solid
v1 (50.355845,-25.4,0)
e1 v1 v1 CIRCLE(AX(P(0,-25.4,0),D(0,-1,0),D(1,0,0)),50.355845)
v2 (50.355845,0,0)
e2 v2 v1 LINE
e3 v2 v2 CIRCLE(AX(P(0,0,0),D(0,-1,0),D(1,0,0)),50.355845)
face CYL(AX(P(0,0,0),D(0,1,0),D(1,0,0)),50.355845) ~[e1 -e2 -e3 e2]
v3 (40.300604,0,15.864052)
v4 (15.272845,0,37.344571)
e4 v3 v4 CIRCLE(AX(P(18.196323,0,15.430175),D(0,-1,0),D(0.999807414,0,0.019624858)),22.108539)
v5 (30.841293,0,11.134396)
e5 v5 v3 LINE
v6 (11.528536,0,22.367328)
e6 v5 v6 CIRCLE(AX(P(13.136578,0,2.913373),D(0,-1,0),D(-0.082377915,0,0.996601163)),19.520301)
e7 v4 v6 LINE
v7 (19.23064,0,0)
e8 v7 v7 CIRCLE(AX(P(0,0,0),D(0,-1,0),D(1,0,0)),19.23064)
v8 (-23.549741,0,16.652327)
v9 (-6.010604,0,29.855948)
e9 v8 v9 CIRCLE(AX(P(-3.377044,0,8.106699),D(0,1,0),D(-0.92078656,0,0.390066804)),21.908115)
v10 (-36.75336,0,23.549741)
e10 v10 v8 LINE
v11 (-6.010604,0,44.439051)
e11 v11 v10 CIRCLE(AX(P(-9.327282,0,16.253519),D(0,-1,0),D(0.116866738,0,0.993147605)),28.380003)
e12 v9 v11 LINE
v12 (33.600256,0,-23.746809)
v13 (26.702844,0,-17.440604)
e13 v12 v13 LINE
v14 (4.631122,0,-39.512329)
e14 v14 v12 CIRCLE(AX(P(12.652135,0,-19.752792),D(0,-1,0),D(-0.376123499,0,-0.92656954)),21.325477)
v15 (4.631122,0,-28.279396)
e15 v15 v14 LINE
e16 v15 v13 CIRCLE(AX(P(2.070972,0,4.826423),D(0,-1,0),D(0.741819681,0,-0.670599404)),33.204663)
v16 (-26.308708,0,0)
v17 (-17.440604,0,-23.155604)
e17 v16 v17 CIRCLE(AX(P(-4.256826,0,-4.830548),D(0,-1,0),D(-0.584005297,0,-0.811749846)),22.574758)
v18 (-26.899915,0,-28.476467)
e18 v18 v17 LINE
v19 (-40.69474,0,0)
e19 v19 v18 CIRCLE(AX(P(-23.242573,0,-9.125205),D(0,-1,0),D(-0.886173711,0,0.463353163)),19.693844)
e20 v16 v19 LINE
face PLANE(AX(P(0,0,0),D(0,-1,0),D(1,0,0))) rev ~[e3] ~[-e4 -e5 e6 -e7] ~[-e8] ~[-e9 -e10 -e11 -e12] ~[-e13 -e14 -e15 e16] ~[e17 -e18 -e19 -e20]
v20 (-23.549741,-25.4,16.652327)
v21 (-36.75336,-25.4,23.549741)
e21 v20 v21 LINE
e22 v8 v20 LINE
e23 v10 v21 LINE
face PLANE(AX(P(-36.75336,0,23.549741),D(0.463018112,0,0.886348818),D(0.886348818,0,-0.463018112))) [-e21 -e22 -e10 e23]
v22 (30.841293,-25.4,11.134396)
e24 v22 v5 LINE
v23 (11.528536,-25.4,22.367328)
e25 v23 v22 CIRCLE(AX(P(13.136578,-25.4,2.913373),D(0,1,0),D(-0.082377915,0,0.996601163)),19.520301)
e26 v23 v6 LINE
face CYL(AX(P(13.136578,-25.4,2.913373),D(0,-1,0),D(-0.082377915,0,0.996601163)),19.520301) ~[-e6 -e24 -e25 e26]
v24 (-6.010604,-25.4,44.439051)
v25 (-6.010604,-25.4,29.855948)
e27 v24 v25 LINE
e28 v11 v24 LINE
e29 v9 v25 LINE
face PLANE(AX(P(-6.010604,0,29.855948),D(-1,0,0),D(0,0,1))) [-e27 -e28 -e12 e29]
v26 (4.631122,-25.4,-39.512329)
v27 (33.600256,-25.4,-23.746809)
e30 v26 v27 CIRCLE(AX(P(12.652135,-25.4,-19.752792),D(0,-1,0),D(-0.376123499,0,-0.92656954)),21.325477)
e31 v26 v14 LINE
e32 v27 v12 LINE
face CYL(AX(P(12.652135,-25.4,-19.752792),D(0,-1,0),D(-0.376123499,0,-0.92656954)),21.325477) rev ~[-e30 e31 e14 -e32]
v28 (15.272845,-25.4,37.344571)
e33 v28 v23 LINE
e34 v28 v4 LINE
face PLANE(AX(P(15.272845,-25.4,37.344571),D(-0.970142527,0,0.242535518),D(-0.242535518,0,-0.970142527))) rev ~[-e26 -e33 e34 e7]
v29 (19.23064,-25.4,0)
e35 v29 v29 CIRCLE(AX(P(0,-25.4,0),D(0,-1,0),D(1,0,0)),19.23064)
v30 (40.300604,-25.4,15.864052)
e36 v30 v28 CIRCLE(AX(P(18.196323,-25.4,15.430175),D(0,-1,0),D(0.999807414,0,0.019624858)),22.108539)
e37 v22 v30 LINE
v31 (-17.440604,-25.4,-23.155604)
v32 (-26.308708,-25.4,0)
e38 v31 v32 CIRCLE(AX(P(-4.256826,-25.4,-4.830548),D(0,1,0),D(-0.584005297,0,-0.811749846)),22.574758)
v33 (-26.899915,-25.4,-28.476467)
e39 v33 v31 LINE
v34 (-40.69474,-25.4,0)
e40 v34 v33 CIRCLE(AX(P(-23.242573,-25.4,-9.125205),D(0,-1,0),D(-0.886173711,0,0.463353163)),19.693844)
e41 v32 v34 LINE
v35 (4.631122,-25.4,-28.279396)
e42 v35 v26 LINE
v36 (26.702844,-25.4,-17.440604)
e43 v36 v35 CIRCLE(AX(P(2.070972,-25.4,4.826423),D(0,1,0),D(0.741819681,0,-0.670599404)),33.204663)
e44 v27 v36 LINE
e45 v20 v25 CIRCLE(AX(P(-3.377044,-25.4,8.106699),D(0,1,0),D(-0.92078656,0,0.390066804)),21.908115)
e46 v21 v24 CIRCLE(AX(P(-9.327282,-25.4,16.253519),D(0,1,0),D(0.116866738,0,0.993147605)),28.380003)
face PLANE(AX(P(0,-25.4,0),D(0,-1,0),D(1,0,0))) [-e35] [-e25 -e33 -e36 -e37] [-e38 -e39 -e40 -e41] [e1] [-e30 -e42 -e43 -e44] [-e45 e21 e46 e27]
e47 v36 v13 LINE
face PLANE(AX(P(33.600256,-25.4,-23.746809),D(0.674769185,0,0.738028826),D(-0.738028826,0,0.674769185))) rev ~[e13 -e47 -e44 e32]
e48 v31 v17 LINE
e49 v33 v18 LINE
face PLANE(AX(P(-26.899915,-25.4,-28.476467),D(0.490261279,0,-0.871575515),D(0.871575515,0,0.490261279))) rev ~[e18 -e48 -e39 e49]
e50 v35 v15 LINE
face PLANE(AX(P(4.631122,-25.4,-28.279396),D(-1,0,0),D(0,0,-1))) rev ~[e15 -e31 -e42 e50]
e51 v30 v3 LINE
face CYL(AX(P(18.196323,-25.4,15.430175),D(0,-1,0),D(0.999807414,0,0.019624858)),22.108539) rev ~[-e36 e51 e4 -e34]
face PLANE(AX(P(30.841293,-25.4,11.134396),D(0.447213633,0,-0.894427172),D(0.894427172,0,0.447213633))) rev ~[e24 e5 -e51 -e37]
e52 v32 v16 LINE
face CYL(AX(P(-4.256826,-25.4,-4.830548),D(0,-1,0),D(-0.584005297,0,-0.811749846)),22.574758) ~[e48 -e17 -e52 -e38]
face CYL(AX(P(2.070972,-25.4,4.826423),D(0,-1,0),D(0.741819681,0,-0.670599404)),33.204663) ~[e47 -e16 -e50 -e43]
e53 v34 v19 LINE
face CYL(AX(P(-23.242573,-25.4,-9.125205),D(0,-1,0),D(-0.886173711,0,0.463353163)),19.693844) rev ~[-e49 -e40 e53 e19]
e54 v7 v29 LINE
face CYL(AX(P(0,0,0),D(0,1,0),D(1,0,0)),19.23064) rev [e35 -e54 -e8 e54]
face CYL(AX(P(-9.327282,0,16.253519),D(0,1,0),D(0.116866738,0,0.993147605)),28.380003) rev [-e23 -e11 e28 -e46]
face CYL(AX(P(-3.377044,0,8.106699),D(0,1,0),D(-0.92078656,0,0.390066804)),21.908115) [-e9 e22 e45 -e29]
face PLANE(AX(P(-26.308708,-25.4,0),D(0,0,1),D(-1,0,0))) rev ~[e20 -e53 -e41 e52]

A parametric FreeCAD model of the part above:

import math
import FreeCAD as App
import Part
import Sketcher

V = App.Vector
Q = App.Units.Quantity

doc = App.newDocument("Part")
body = doc.addObject("PartDesign::Body", "Body")

sketch1 = body.newObject("Sketcher::SketchObject", "Sketch")
sketch1.AttachmentSupport = (doc.getObject("XZ_Plane"), [""])
sketch1.MapMode = "FlatFace"
sketch1.addGeometry([
    Part.Circle(V(0, 0, 0), V(0, 0, 1), 50),
    Part.Circle(V(0, 0, 0), V(0, 0, 1), 19),
], False)
sketch1.addConstraint([
    Sketcher.Constraint("Coincident", 0, 3, -1, 1),
    Sketcher.Constraint("Coincident", 1, 3, -1, 1),
    Sketcher.Constraint("Diameter", 0, Q("100.71169 mm")),
    Sketcher.Constraint("Diameter", 1, Q("38.46128 mm")),
])
pad1 = body.newObject("PartDesign::Pad", "Pad")
pad1.Profile = sketch1
pad1.Length = Q("1 in")

sketch2 = body.newObject("Sketcher::SketchObject", "Sketch001")
sketch2.AttachmentSupport = (doc.getObject("XZ_Plane"), [""])
sketch2.MapMode = "FlatFace"
sketch2.addGeometry([
    Part.ArcOfCircle(Part.Circle(V(-9, 16, 0), V(0, 0, 1), 28), math.radians(83), math.radians(165)),
    Part.LineSegment(V(-37, 24, 0), V(-24, 17, 0)),
    Part.ArcOfCircle(Part.Circle(V(-3, 8, 0), V(0, 0, 1), 22), math.radians(97), math.radians(157)),
    Part.LineSegment(V(-6, 30, 0), V(-6, 44, 0)),
], False)
sketch2.addConstraint([
    Sketcher.Constraint("Coincident", 0, 2, 1, 1),
    Sketcher.Constraint("Coincident", 1, 2, 2, 2),
    Sketcher.Constraint("Coincident", 2, 1, 3, 1),
    Sketcher.Constraint("Coincident", 3, 2, 0, 1),
    Sketcher.Constraint("Vertical", 3),
    Sketcher.Constraint("Radius", 0, Q("28.380003 mm")),
    Sketcher.Constraint("Radius", 2, Q("21.908115 mm")),
    Sketcher.Constraint("DistanceY", -1, 1, 2, 3, Q("8.106699 mm")),
    Sketcher.Constraint("Distance", 1, Q("14.89664 mm")),
    Sketcher.Constraint("DistanceY", 3, 1, 3, 2, Q("14.583103 mm")),
    Sketcher.Constraint("DistanceY", -1, 1, 0, 3, Q("16.253519 mm")),
    Sketcher.Constraint("DistanceX", 0, 2, -1, 1, Q("36.75336 mm")),
    Sketcher.Constraint("DistanceY", -1, 1, 0, 2, Q("23.549741 mm")),
    Sketcher.Constraint("DistanceX", 1, 2, -1, 1, Q("23.549741 mm")),
])
pocket1 = body.newObject("PartDesign::Pocket", "Pocket")
pocket1.Profile = sketch2
pocket1.Length = Q("6.28 in")
pocket1.Reversed = True

sketch3 = body.newObject("Sketcher::SketchObject", "Sketch002")
sketch3.AttachmentSupport = (doc.getObject("XZ_Plane"), [""])
sketch3.MapMode = "FlatFace"
sketch3.AttachmentOffset = App.Placement(V(0, 0, 1 * 25.4), App.Rotation())
sketch3.addGeometry([
    Part.ArcOfCircle(Part.Circle(V(-4, -5, 0), V(0, 0, 1), 23), math.radians(168), math.radians(234)),
    Part.LineSegment(V(-26, 0, 0), V(-41, 0, 0)),
    Part.ArcOfCircle(Part.Circle(V(-23, -9, 0), V(0, 0, 1), 20), math.radians(152), math.radians(259)),
    Part.LineSegment(V(-27, -28, 0), V(-17, -23, 0)),
], False)
sketch3.addConstraint([
    Sketcher.Constraint("Coincident", 0, 1, 1, 1),
    Sketcher.Constraint("Coincident", 1, 2, 2, 1),
    Sketcher.Constraint("Coincident", 2, 2, 3, 1),
    Sketcher.Constraint("Coincident", 3, 2, 0, 2),
    Sketcher.Constraint("Horizontal", 1),
    Sketcher.Constraint("PointOnObject", 0, 1, -1),
    Sketcher.Constraint("Radius", 0, Q("22.574758 mm")),
    Sketcher.Constraint("Radius", 2, Q("19.693844 mm")),
    Sketcher.Constraint("DistanceY", 3, 2, 2, 3, Q("14.030399 mm")),
    Sketcher.Constraint("DistanceX", 1, 2, 1, 1, Q("14.386032 mm")),
    Sketcher.Constraint("DistanceX", 0, 1, -1, 1, Q("26.308708 mm")),
    Sketcher.Constraint("DistanceX", 2, 2, 2, 3, Q("3.657342 mm")),
    Sketcher.Constraint("DistanceX", 2, 2, 0, 3, Q("22.643089 mm")),
    Sketcher.Constraint("DistanceY", 2, 2, 0, 3, Q("23.645919 mm")),
])
pocket2 = body.newObject("PartDesign::Pocket", "Pocket001")
pocket2.Profile = sketch3
pocket2.Length = Q("1.56 in")

sketch4 = body.newObject("Sketcher::SketchObject", "Sketch003")
sketch4.AttachmentSupport = (doc.getObject("XZ_Plane"), [""])
sketch4.MapMode = "FlatFace"
sketch4.AttachmentOffset = App.Placement(V(0, 0, 1 * 25.4), App.Rotation())
sketch4.addGeometry([
    Part.LineSegment(V(15.272845, 37.344571, 0), V(11.528536, 22.367328, 0)),
    Part.ArcOfCircle(Part.Circle(V(13.136578, 2.913373, 0), V(0, 0, 1), 19.520301), math.radians(24.907369), math.radians(94.725262)),
    Part.LineSegment(V(30.841293, 11.134396, 0), V(40.300604, 15.864052, 0)),
    Part.ArcOfCircle(Part.Circle(V(18.196323, 15.430175, 0), V(0, 0, 1), 22.108539), math.radians(1.124494), math.radians(97.598648)),
    Part.ArcOfCircle(Part.Circle(V(2.070972, 4.826423, 0), V(0, 0, 1), 33.204663), math.radians(-85.577985), math.radians(-42.113344)),
    Part.LineSegment(V(4.631122, -28.279396, 0), V(4.631122, -39.512329, 0)),
    Part.ArcOfCircle(Part.Circle(V(12.652135, -19.752792, 0), V(0, 0, 1), 21.325477), math.radians(-112.093769), math.radians(-10.794588)),
    Part.LineSegment(V(33.600256, -23.746809, 0), V(26.702844, -17.440604, 0)),
], False)
sketch4.addConstraint([
    Sketcher.Constraint("Coincident", 0, 2, 1, 2),
    Sketcher.Constraint("Coincident", 1, 1, 2, 1),
    Sketcher.Constraint("Coincident", 2, 2, 3, 1),
    Sketcher.Constraint("Coincident", 3, 2, 0, 1),
    Sketcher.Constraint("Coincident", 4, 1, 5, 1),
    Sketcher.Constraint("Coincident", 5, 2, 6, 1),
    Sketcher.Constraint("Coincident", 6, 2, 7, 1),
    Sketcher.Constraint("Coincident", 7, 2, 4, 2),
    Sketcher.Constraint("Vertical", 5),
    Sketcher.Constraint("Radius", 1, Q("19.520301 mm")),
    Sketcher.Constraint("Radius", 3, Q("22.108539 mm")),
    Sketcher.Constraint("DistanceY", 7, 2, 1, 1, Q("1.125 in")),
    Sketcher.Constraint("Radius", 4, Q("33.204663 mm")),
    Sketcher.Constraint("Radius", 6, Q("21.325477 mm")),
    Sketcher.Constraint("DistanceX", 0, 2, 6, 3, Q("1.123599 mm")),
    Sketcher.Constraint("DistanceX", 4, 1, 3, 3, Q("13.565201 mm")),
    Sketcher.Constraint("Distance", 0, Q("15.438188 mm")),
    Sketcher.Constraint("Distance", 2, Q("10.575831 mm")),
    Sketcher.Constraint("Distance", 7, Q("9.345722 mm")),
    Sketcher.Constraint("DistanceY", 5, 2, 5, 1, Q("11.232933 mm")),
    Sketcher.Constraint("DistanceX", -1, 1, 4, 3, Q("2.070972 mm")),
    Sketcher.Constraint("DistanceY", 6, 3, -1, 1, Q("19.752792 mm")),
    Sketcher.Constraint("DistanceY", -1, 1, 0, 2, Q("22.367328 mm")),
    Sketcher.Constraint("DistanceY", -1, 1, 2, 2, Q("15.864052 mm")),
    Sketcher.Constraint("DistanceY", -1, 1, 3, 2, Q("37.344571 mm")),
    Sketcher.Constraint("DistanceX", -1, 1, 4, 1, Q("4.631122 mm")),
    Sketcher.Constraint("DistanceY", 5, 2, -1, 1, Q("39.512329 mm")),
    Sketcher.Constraint("DistanceX", 0, 2, 1, 3, Q("1.608042 mm")),
])
pocket3 = body.newObject("PartDesign::Pocket", "Pocket002")
pocket3.Profile = sketch4
pocket3.Length = Q("2.38 in")

doc.recompute()
